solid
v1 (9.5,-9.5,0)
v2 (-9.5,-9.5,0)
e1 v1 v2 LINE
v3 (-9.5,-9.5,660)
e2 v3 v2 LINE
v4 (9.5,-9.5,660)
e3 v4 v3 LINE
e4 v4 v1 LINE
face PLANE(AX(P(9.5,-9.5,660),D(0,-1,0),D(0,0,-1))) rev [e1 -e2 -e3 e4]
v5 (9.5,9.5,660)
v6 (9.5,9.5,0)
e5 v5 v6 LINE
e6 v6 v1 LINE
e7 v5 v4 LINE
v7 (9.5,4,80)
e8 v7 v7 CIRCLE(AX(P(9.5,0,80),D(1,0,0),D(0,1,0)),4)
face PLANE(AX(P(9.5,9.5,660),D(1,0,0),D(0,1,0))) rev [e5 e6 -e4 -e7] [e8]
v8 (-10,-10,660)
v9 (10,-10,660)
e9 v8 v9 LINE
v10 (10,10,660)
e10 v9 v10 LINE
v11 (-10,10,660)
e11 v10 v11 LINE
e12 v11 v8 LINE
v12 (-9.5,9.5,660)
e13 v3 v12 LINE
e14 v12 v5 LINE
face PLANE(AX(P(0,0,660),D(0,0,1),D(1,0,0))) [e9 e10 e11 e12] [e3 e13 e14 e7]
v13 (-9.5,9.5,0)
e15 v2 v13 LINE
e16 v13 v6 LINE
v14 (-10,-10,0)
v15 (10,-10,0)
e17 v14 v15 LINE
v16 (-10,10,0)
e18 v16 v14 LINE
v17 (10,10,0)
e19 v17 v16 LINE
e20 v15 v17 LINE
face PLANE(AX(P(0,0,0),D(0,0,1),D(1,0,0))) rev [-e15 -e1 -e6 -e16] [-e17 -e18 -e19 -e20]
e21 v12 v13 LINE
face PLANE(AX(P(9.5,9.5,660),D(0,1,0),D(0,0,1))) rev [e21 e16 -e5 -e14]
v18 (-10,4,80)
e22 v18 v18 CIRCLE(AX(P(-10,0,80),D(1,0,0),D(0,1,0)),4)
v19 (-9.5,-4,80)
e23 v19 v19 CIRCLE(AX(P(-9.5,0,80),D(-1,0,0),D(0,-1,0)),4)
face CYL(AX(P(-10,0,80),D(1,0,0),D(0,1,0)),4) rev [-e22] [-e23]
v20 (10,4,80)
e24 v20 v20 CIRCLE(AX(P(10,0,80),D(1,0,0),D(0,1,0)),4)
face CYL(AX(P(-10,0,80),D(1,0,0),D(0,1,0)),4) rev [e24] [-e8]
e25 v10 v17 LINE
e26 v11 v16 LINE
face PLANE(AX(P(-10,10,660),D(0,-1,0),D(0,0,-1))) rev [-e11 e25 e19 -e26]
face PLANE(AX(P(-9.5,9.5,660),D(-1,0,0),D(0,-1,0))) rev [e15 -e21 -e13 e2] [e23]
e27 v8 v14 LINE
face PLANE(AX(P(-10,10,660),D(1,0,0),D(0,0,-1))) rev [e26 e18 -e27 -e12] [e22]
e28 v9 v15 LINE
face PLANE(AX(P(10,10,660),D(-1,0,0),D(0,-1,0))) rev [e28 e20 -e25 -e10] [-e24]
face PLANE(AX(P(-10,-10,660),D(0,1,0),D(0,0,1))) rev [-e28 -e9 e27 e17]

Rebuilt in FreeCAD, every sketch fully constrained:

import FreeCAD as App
import Part
import Sketcher

V = App.Vector
Q = App.Units.Quantity

doc = App.newDocument("Part")
body = doc.addObject("PartDesign::Body", "Body")

sketch1 = doc.addObject("Sketcher::SketchObject", "Sketch")
body.addObject(sketch1)
sketch1.AttachmentSupport = (doc.XY_Plane, [""])
sketch1.MapMode = "FlatFace"
sketch1.addGeometry(Part.LineSegment(V(-10, 10, 0), V(-10, -10, 0)), False)
sketch1.addGeometry(Part.LineSegment(V(-10, -10, 0), V(10, -10, 0)), False)
sketch1.addGeometry(Part.LineSegment(V(10, -10, 0), V(10, 10, 0)), False)
sketch1.addGeometry(Part.LineSegment(V(10, 10, 0), V(-10, 10, 0)), False)
sketch1.addConstraint(Sketcher.Constraint("Coincident", 0, 2, 1, 1))
sketch1.addConstraint(Sketcher.Constraint("Coincident", 1, 2, 2, 1))
sketch1.addConstraint(Sketcher.Constraint("Coincident", 2, 2, 3, 1))
sketch1.addConstraint(Sketcher.Constraint("Coincident", 3, 2, 0, 1))
sketch1.addConstraint(Sketcher.Constraint("Vertical", 0))
sketch1.addConstraint(Sketcher.Constraint("Horizontal", 1))
sketch1.addConstraint(Sketcher.Constraint("Vertical", 2))
sketch1.addConstraint(Sketcher.Constraint("Horizontal", 3))
sketch1.addConstraint(Sketcher.Constraint("Symmetric", 0, 2, 2, 2, -1, 1))
sketch1.addConstraint(Sketcher.Constraint("Equal", 3, 0))
sketch1.addConstraint(Sketcher.Constraint("DistanceX", 1, 1, 1, 2, Q("20 mm")))
pad1 = doc.addObject("PartDesign::Pad", "Pad")
body.addObject(pad1)
pad1.Profile = sketch1
pad1.Length = 660

sketch2 = doc.addObject("Sketcher::SketchObject", "Sketch001")
body.addObject(sketch2)
sketch2.AttachmentSupport = (doc.XY_Plane, [""])
sketch2.MapMode = "FlatFace"
sketch2.addGeometry(Part.LineSegment(V(9.5, 9.5, 0), V(9.5, -9.5, 0)), False)
sketch2.addGeometry(Part.LineSegment(V(9.5, -9.5, 0), V(-9.5, -9.5, 0)), False)
sketch2.addGeometry(Part.LineSegment(V(-9.5, -9.5, 0), V(-9.5, 9.5, 0)), False)
sketch2.addGeometry(Part.LineSegment(V(-9.5, 9.5, 0), V(9.5, 9.5, 0)), False)
sketch2.addConstraint(Sketcher.Constraint("Coincident", 0, 2, 1, 1))
sketch2.addConstraint(Sketcher.Constraint("Coincident", 1, 2, 2, 1))
sketch2.addConstraint(Sketcher.Constraint("Coincident", 2, 2, 3, 1))
sketch2.addConstraint(Sketcher.Constraint("Coincident", 3, 2, 0, 1))
sketch2.addConstraint(Sketcher.Constraint("Vertical", 0))
sketch2.addConstraint(Sketcher.Constraint("Horizontal", 1))
sketch2.addConstraint(Sketcher.Constraint("Vertical", 2))
sketch2.addConstraint(Sketcher.Constraint("Horizontal", 3))
sketch2.addConstraint(Sketcher.Constraint("Symmetric", 0, 2, 2, 2, -1, 1))
sketch2.addConstraint(Sketcher.Constraint("Equal", 3, 0))
sketch2.addConstraint(Sketcher.Constraint("DistanceX", 1, 2, 1, 1, Q("19 mm")))
pocket1 = doc.addObject("PartDesign::Pocket", "Pocket")
body.addObject(pocket1)
pocket1.Profile = sketch2
pocket1.Length = 660
pocket1.Reversed = True

sketch3 = doc.addObject("Sketcher::SketchObject", "Sketch002")
body.addObject(sketch3)
sketch3.AttachmentSupport = (doc.YZ_Plane, [""])
sketch3.MapMode = "FlatFace"
sketch3.AttachmentOffset = App.Placement(V(0, 0, 10), App.Rotation())
sketch3.addGeometry(Part.Circle(V(0, 80, 0), V(0, 0, 1), 4), False)
sketch3.addConstraint(Sketcher.Constraint("PointOnObject", 0, 3, -2))
sketch3.addConstraint(Sketcher.Constraint("Diameter", 0, Q("8 mm")))
sketch3.addConstraint(Sketcher.Constraint("DistanceY", -1, 1, 0, 3, Q("80 mm")))
pocket2 = doc.addObject("PartDesign::Pocket", "Pocket001")
body.addObject(pocket2)
pocket2.Profile = sketch3
pocket2.Length = 20

doc.recompute()
